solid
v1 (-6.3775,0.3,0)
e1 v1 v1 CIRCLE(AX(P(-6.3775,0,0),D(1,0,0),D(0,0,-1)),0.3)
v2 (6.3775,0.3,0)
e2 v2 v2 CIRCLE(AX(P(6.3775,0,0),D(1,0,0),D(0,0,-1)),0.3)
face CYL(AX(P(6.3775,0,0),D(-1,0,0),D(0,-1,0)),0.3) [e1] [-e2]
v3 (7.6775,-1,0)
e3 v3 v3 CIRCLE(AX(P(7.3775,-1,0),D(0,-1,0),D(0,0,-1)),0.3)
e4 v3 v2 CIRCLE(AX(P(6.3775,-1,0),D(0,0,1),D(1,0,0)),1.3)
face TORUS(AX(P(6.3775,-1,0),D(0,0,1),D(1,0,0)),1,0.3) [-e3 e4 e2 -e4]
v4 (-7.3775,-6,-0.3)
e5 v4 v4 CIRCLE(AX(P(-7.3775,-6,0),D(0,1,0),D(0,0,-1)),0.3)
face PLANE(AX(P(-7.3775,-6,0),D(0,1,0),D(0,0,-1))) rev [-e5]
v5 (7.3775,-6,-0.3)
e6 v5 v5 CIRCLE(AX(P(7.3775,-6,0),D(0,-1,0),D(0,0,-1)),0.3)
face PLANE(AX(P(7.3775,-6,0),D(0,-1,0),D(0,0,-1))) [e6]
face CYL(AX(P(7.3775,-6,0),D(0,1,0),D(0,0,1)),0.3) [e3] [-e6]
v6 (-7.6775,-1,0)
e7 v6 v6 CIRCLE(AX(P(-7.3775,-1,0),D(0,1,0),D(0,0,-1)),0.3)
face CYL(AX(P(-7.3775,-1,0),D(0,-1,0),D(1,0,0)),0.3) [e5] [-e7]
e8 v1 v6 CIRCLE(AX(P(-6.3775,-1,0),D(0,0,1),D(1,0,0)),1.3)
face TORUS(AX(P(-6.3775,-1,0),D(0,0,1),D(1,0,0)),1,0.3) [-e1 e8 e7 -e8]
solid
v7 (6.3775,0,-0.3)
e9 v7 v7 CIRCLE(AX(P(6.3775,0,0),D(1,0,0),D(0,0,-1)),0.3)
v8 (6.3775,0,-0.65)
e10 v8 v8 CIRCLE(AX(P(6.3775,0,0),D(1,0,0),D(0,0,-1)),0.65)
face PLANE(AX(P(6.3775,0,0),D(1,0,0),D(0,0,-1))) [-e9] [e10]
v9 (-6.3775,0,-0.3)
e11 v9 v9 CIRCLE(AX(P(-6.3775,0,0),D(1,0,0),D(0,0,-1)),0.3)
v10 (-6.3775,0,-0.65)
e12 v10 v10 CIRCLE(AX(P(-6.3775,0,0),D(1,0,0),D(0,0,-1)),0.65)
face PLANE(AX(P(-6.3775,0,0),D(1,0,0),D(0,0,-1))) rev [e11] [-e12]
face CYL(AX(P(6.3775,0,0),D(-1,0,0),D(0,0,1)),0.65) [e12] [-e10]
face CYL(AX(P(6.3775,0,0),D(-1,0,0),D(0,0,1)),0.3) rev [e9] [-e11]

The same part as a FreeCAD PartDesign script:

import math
import FreeCAD as App
import Part
import Sketcher

V = App.Vector
Q = App.Units.Quantity

doc = App.newDocument("Part")
params = doc.addObject("Spreadsheet::Sheet", "Params")
for row, (alias, value) in enumerate([
    ("sketch1_diameter", "0.6 mm"),
    ("sketch2_radius", "1 mm"),
    ("sketch2_height", "5 mm"),
    ("sketch3_diameter", "1.3 mm"),
    ("sketch3_diameter2", "0.6 mm"),
    ("pad1_length", "6.3775 mm"),
    ("pad1_length2", "6.3775 mm"),
], start=1):
    params.set(f"A{row}", alias)
    params.set(f"B{row}", "=" + value)
    params.setAlias(f"B{row}", alias)

body = doc.addObject("PartDesign::Body", "Body")

sketch1 = body.newObject("Sketcher::SketchObject", "Sketch")
sketch1.AttachmentSupport = (doc.getObject("YZ_Plane"), [""])
sketch1.MapMode = "FlatFace"
sketch1.addGeometry(Part.Circle(V(0, 0, 0), V(0, 0, 1), 0.3), False)
sketch1.addConstraint([
    Sketcher.Constraint("Coincident", 0, 3, -1, 1),
    Sketcher.Constraint("Diameter", 0, Q("0.6 mm")),
])
sketch1.setExpression("Constraints[1]", "Params.sketch1_diameter")

sketch2 = body.newObject("Sketcher::SketchObject", "Sketch001")
sketch2.AttachmentSupport = (doc.getObject("XY_Plane"), [""])
sketch2.MapMode = "FlatFace"
sketch2.addGeometry([
    Part.LineSegment(V(-7.4, -6, 0), V(-7.4, -1, 0)),
    Part.ArcOfCircle(Part.Circle(V(-6.4, -1, 0), V(0, 0, 1), 1), math.radians(90), math.radians(180)),
    Part.LineSegment(V(-6.4, 0, 0), V(6.4, 0, 0)),
    Part.ArcOfCircle(Part.Circle(V(6.4, -1, 0), V(0, 0, 1), 1), math.radians(0), math.radians(90)),
    Part.LineSegment(V(7.4, -1, 0), V(7.4, -6, 0)),
], False)
sketch2.addConstraint([
    Sketcher.Constraint("Tangent", 0, 2, 1, 2),
    Sketcher.Constraint("Tangent", 1, 1, 2, 1),
    Sketcher.Constraint("Tangent", 2, 2, 3, 2),
    Sketcher.Constraint("Tangent", 3, 1, 4, 1),
    Sketcher.Constraint("Vertical", 0),
    Sketcher.Constraint("Horizontal", 2),
    Sketcher.Constraint("Vertical", 4),
    Sketcher.Constraint("Equal", 1, 3),
    Sketcher.Constraint("Symmetric", 1, 1, 2, 2, -1, 1),
    Sketcher.Constraint("Horizontal", 0, 1, 4, 2),
    Sketcher.Constraint("Radius", 1, Q("1 mm")),
    Sketcher.Constraint("DistanceY", 0, 1, 0, 2, Q("5 mm")),
    Sketcher.Constraint("DistanceX", 2, 1, 2, 2, Q("12.755 mm")),
])
sketch2.setExpression("Constraints[10]", "Params.sketch2_radius")
sketch2.setExpression("Constraints[11]", "Params.sketch2_height")
doc.recompute()

additivepipe = body.newObject("PartDesign::AdditivePipe", "AdditivePipe")
additivepipe.Profile = sketch1
additivepipe.Spine = (sketch2, ["Edge1", "Edge2", "Edge3", "Edge4", "Edge5"])
body2 = doc.addObject("PartDesign::Body", "Body001")

sketch3 = body2.newObject("Sketcher::SketchObject", "Sketch002")
sketch3.AttachmentSupport = (doc.getObject("YZ_Plane001"), [""])
sketch3.MapMode = "FlatFace"
sketch3.addGeometry([
    Part.Circle(V(0, 0, 0), V(0, 0, 1), 0.65),
    Part.Circle(V(0, 0, 0), V(0, 0, 1), 0.3),
], False)
sketch3.addConstraint([
    Sketcher.Constraint("Coincident", 0, 3, -1, 1),
    Sketcher.Constraint("Coincident", 1, 3, -1, 1),
    Sketcher.Constraint("Diameter", 0, Q("1.3 mm")),
    Sketcher.Constraint("Diameter", 1, Q("0.6 mm")),
])
sketch3.setExpression("Constraints[2]", "Params.sketch3_diameter")
sketch3.setExpression("Constraints[3]", "Params.sketch3_diameter2")
pad1 = body2.newObject("PartDesign::Pad", "Pad")
pad1.Profile = sketch3
pad1.Type = "TwoLengths"
pad1.setExpression("Length", "Params.pad1_length")
pad1.setExpression("Length2", "Params.pad1_length2")

doc.recompute()
